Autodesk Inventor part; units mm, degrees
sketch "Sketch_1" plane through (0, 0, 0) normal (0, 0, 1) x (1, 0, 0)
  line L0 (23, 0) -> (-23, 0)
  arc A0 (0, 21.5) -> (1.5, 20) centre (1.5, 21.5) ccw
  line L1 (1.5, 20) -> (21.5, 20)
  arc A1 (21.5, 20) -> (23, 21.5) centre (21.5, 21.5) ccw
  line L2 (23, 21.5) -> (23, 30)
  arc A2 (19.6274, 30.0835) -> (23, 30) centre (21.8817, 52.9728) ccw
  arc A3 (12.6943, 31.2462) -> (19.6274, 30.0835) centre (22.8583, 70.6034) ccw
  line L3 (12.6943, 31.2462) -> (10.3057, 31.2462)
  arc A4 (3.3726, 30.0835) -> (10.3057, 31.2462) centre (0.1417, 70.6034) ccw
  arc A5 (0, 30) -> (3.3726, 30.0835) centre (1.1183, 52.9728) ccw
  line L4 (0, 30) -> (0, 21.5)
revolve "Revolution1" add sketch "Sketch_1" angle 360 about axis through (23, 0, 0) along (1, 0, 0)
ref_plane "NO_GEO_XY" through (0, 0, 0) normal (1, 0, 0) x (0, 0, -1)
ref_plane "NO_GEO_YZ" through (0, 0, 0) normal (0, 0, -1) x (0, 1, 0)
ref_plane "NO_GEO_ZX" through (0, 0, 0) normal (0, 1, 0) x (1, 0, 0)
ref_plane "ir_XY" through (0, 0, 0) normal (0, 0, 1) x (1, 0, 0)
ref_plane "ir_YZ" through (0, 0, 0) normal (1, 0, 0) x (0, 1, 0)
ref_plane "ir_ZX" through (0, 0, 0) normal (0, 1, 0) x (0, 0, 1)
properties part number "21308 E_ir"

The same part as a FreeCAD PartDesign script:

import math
import FreeCAD as App
import Part
import Sketcher

V = App.Vector

doc = App.newDocument("Part")
body = doc.addObject("PartDesign::Body", "Body")

# Sketch on XY plane
sketch1 = body.newObject("Sketcher::SketchObject", "Sketch")
sketch1.AttachmentSupport = (doc.getObject("XY_Plane"), [""])
sketch1.MapMode = "FlatFace"
sketch1.addGeometry([
    Part.LineSegment(V(0, 30, 0), V(0, 21.5, 0)),  # 0
    Part.ArcOfCircle(Part.Circle(V(1.5, 21.5, 0), V(0, 0, 1), 1.5), math.radians(180), math.radians(270)),  # 1
    Part.LineSegment(V(1.5, 20, 0), V(21.5, 20, 0)),  # 2
    Part.ArcOfCircle(Part.Circle(V(21.5, 21.5, 0), V(0, 0, 1), 1.5), math.radians(-90), math.radians(0)),  # 3
    Part.LineSegment(V(23, 21.5, 0), V(23, 30, 0)),  # 4
    Part.ArcOfCircle(Part.Circle(V(21.9, 53, 0), V(0, 0, 1), 23), math.radians(-95.63), math.radians(-87.21)),  # 5
    Part.ArcOfCircle(Part.Circle(V(22.9, 70.6, 0), V(0, 0, 1), 40.7), math.radians(-104.48), math.radians(-94.56)),  # 6
    Part.LineSegment(V(12.7, 31.2, 0), V(10.3, 31.2, 0)),  # 7
    Part.ArcOfCircle(Part.Circle(V(0.1, 70.6, 0), V(0, 0, 1), 40.6), math.radians(-85.44), math.radians(-75.52)),  # 8
    Part.ArcOfCircle(Part.Circle(V(1.1, 53, 0), V(0, 0, 1), 23), math.radians(-92.79), math.radians(-84.38)),  # 9
], False)
sketch1.addConstraint([
    Sketcher.Constraint("Tangent", 0, 2, 1, 1),
    Sketcher.Constraint("Tangent", 1, 2, 2, 1),
    Sketcher.Constraint("Tangent", 2, 2, 3, 1),
    Sketcher.Constraint("Tangent", 3, 2, 4, 1),
    Sketcher.Constraint("Coincident", 4, 2, 5, 2),
    Sketcher.Constraint("Coincident", 5, 1, 6, 2),
    Sketcher.Constraint("Coincident", 6, 1, 7, 1),
    Sketcher.Constraint("Coincident", 7, 2, 8, 2),
    Sketcher.Constraint("Coincident", 8, 1, 9, 2),
    Sketcher.Constraint("Coincident", 9, 1, 0, 1),
    Sketcher.Constraint("Vertical", 0),
    Sketcher.Constraint("Horizontal", 2),
    Sketcher.Constraint("Vertical", 4),
    Sketcher.Constraint("Horizontal", 7),
    Sketcher.Constraint("Equal", 1, 3),
    Sketcher.Constraint("PointOnObject", 0, 2, -2),
    Sketcher.Constraint("Horizontal", 5, 1, 8, 1),
    Sketcher.Constraint("Horizontal", 4, 2, 9, 1),
    Sketcher.Constraint("Radius", 1, 1.5),
    Sketcher.Constraint("DistanceX", 2, 1, 2, 2, 20.0),
    Sketcher.Constraint("DistanceY", 0, 2, 0, 1, 8.5),
    Sketcher.Constraint("DistanceY", -1, 1, 1, 2, 20.0),
    Sketcher.Constraint("Radius", 5, 22.9928),
    Sketcher.Constraint("Radius", 6, 40.6565),
    Sketcher.Constraint("Radius", 8, 40.6404),
    Sketcher.Constraint("Radius", 9, 23.0072),
    Sketcher.Constraint("DistanceX", -1, 1, 6, 3, 22.86),
    Sketcher.Constraint("DistanceY", -1, 1, 9, 3, 52.98),
    Sketcher.Constraint("DistanceX", 7, 2, 7, 1, 2.3886),
    Sketcher.Constraint("DistanceY", 8, 3, 6, 3, 0.016),
    Sketcher.Constraint("DistanceX", 6, 1, 5, 1, 6.933),
    Sketcher.Constraint("DistanceX", -1, 1, 5, 3, 21.8813),
])
revolution = body.newObject("PartDesign::Revolution", "Revolution")
revolution.Profile = sketch1
revolution.ReferenceAxis = (sketch1, ["H_Axis"])
revolution.Angle = 360

doc.recompute()
